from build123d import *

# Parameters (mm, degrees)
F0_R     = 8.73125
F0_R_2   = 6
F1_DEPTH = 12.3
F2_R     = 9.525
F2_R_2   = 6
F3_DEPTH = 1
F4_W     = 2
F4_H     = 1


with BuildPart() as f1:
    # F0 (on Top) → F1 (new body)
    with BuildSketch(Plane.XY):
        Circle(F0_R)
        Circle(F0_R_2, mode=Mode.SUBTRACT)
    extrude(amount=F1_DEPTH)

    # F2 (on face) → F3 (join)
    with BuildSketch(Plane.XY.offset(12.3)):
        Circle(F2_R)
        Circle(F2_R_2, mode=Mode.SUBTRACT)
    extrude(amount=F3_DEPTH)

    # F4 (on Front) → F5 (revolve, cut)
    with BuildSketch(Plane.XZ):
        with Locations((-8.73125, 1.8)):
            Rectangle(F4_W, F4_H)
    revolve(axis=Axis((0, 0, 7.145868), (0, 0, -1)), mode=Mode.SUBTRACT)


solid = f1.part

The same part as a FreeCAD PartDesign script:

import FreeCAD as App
import Part
import Sketcher
Q = App.Units.Quantity


def add_polygon(sketch, points):
    """Adds a closed chain of lines whose ends are joined by coincident constraints."""
    first, n = sketch.GeometryCount, len(points)
    for a, b in zip(points, points[1:] + points[:1]):
        sketch.addGeometry(Part.LineSegment(App.Vector(*a, 0), App.Vector(*b, 0)), False)
    for i in range(n):
        sketch.addConstraint(Sketcher.Constraint("Coincident", first + i, 2, first + (i + 1) % n, 1))

doc = App.newDocument("Part")
params = doc.addObject("Spreadsheet::Sheet", "Params")
for row, (alias, value) in enumerate([
    ("sketch1_diameter", "12 mm"),
    ("pad1_length", "12.3 mm"),
    ("sketch2_diameter", "12 mm"),
    ("sketch2_diameter2", "19.05 mm"),
    ("pad2_length", "1 mm"),
    ("sketch3_width", "2 mm"),
    ("sketch3_height", "1 mm"),
    ("groove_angle", "360 deg"),
], start=1):
    params.set(f"A{row}", alias)
    params.set(f"B{row}", "=" + value)
    params.setAlias(f"B{row}", alias)

body = doc.addObject("PartDesign::Body", "Body")

# Sketch on XY plane
sketch1 = body.newObject("Sketcher::SketchObject", "Sketch")
sketch1.AttachmentSupport = (doc.getObject("XY_Plane"), [""])
sketch1.MapMode = "FlatFace"
sketch1.addGeometry([
    Part.Circle(App.Vector(0, 0, 0), App.Vector(0, 0, 1), 9),
    Part.Circle(App.Vector(0, 0, 0), App.Vector(0, 0, 1), 6),
], False)
sketch1.addConstraint([
    Sketcher.Constraint("Coincident", 0, 3, -1, 1),
    Sketcher.Constraint("Coincident", 1, 3, -1, 1),
    Sketcher.Constraint("Diameter", 1, Q("12 mm")),
    Sketcher.Constraint("Diameter", 0, Q("17.4625 mm")),
])
sketch1.setExpression("Constraints[2]", "Params.sketch1_diameter")
pad1 = body.newObject("PartDesign::Pad", "Pad")
pad1.Profile = sketch1
pad1.setExpression("Length", "Params.pad1_length")

# Sketch on XY plane
sketch2 = body.newObject("Sketcher::SketchObject", "Sketch001")
sketch2.AttachmentSupport = (doc.getObject("XY_Plane"), [""])
sketch2.MapMode = "FlatFace"
sketch2.AttachmentOffset = App.Placement(App.Vector(0, 0, 12.3), App.Rotation())
sketch2.addGeometry([
    Part.Circle(App.Vector(0, 0, 0), App.Vector(0, 0, 1), 10),
    Part.Circle(App.Vector(0, 0, 0), App.Vector(0, 0, 1), 6),
], False)
sketch2.addConstraint([
    Sketcher.Constraint("Coincident", 0, 3, -1, 1),
    Sketcher.Constraint("Coincident", 1, 3, -1, 1),
    Sketcher.Constraint("Diameter", 1, Q("12 mm")),
    Sketcher.Constraint("Diameter", 0, Q("19.05 mm")),
])
sketch2.setExpression("Constraints[2]", "Params.sketch2_diameter")
sketch2.setExpression("Constraints[3]", "Params.sketch2_diameter2")
pad2 = body.newObject("PartDesign::Pad", "Pad001")
pad2.Profile = sketch2
pad2.setExpression("Length", "Params.pad2_length")

# Sketch on XZ plane
sketch3 = body.newObject("Sketcher::SketchObject", "Sketch002")
sketch3.AttachmentSupport = (doc.getObject("XZ_Plane"), [""])
sketch3.MapMode = "FlatFace"
add_polygon(sketch3, [(-9.7, 2.3), (-9.7, 1.3), (-7.7, 1.3), (-7.7, 2.3)])  # lines 0-3
sketch3.addConstraint([
    Sketcher.Constraint("Vertical", 0),
    Sketcher.Constraint("Horizontal", 1),
    Sketcher.Constraint("Vertical", 2),
    Sketcher.Constraint("Horizontal", 3),
    Sketcher.Constraint("DistanceX", 1, 1, 1, 2, Q("2 mm")),
    Sketcher.Constraint("DistanceY", 0, 2, 0, 1, Q("1 mm")),
    Sketcher.Constraint("DistanceY", -1, 1, 0, 2, Q("1.3 mm")),
    Sketcher.Constraint("DistanceX", 0, 2, -1, 1, Q("9.73125 mm")),
])
sketch3.setExpression("Constraints[8]", "Params.sketch3_width")
sketch3.setExpression("Constraints[9]", "Params.sketch3_height")
groove = body.newObject("PartDesign::Groove", "Groove")
groove.Profile = sketch3
groove.ReferenceAxis = (sketch3, ["V_Axis"])
groove.setExpression("Angle", "Params.groove_angle")

doc.recompute()
